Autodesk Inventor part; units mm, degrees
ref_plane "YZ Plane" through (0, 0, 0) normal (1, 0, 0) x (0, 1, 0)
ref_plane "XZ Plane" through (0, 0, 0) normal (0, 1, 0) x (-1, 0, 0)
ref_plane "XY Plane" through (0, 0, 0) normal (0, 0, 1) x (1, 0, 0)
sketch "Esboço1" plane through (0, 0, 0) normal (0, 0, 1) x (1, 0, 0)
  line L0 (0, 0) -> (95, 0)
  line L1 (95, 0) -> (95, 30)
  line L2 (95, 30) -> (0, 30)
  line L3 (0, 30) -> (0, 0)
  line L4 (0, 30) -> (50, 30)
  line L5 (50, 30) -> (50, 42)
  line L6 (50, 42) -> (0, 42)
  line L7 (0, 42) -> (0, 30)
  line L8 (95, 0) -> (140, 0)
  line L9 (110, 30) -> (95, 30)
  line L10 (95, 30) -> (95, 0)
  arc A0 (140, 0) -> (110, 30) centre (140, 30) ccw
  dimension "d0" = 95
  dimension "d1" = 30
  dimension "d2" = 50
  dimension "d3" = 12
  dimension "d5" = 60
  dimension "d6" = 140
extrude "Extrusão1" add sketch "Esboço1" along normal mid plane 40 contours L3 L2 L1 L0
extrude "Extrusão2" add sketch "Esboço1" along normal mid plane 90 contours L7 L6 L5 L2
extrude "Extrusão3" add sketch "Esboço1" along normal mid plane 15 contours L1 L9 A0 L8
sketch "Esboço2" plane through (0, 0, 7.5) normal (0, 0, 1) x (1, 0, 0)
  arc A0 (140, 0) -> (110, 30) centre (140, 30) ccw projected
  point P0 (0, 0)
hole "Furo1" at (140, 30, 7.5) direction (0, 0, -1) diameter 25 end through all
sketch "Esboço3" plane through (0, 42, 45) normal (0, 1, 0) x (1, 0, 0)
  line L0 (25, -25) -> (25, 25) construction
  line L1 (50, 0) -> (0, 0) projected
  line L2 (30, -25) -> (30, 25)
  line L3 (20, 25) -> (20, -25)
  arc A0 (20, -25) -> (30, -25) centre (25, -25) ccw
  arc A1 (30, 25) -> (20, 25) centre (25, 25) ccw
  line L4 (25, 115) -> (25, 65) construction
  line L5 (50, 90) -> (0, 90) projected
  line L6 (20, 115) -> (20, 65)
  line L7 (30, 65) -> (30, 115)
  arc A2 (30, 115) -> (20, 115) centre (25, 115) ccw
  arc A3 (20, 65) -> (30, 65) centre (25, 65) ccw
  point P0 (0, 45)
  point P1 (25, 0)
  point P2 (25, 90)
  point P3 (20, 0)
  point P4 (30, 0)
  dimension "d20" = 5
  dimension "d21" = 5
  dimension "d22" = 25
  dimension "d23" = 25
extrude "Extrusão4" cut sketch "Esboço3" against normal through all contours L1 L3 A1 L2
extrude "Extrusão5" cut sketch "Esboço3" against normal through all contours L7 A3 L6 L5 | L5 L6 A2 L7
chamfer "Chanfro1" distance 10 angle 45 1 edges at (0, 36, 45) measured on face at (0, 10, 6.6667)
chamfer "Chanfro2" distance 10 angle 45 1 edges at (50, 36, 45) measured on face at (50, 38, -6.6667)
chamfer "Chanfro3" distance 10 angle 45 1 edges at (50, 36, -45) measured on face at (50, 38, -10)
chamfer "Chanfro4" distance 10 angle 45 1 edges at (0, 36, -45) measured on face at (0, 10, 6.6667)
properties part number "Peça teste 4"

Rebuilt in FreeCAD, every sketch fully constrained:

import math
import FreeCAD as App
import Part
import Sketcher

V = App.Vector


def edges_at(feature, points):
    """Names of the edges that pass closest to the given points."""
    edges = feature.Shape.Edges
    near = lambda p: min(range(len(edges)), key=lambda i: edges[i].distToShape(Part.Vertex(*p))[0])
    return sorted({f"Edge{near(p) + 1}" for p in points})

doc = App.newDocument("Part")
params = doc.addObject("Spreadsheet::Sheet", "Params")
for row, (alias, value) in enumerate([
    ("sketch1_width", "95 mm"),
    ("sketch1_height", "30 mm"),
    ("pad1_length", "40 mm"),
    ("sketch2_width", "50 mm"),
    ("sketch2_height", "12 mm"),
    ("pad2_length", "90 mm"),
    ("sketch3_radius", "30 mm"),
    ("sketch3_height", "30 mm"),
    ("pad3_length", "15 mm"),
    ("sketch4_diameter", "25 mm"),
    ("hole_diameter", "25 mm"),
    ("sketch5_radius", "5 mm"),
    ("sketch5_height", "25 mm"),
    ("sketch6_radius", "5 mm"),
    ("sketch6_height", "50 mm"),
    ("chamfer_size", "10 mm"),
    ("chamfer2_size", "10 mm"),
    ("chamfer3_size", "10 mm"),
    ("chamfer4_size", "10 mm"),
], start=1):
    params.set(f"A{row}", alias)
    params.set(f"B{row}", "=" + value)
    params.setAlias(f"B{row}", alias)

body = doc.addObject("PartDesign::Body", "Body")

# Sketch on XY plane
sketch1 = body.newObject("Sketcher::SketchObject", "Sketch")
sketch1.AttachmentSupport = (doc.getObject("XY_Plane"), [""])
sketch1.MapMode = "FlatFace"
sketch1.addGeometry(Part.LineSegment(V(0, 30, 0), V(0, 0, 0)), False)
sketch1.addGeometry(Part.LineSegment(V(0, 0, 0), V(95, 0, 0)), False)
sketch1.addGeometry(Part.LineSegment(V(95, 0, 0), V(95, 30, 0)), False)
sketch1.addGeometry(Part.LineSegment(V(95, 30, 0), V(0, 30, 0)), False)
sketch1.addConstraint(Sketcher.Constraint("Coincident", 0, 2, 1, 1))
sketch1.addConstraint(Sketcher.Constraint("Coincident", 1, 2, 2, 1))
sketch1.addConstraint(Sketcher.Constraint("Coincident", 2, 2, 3, 1))
sketch1.addConstraint(Sketcher.Constraint("Coincident", 3, 2, 0, 1))
sketch1.addConstraint(Sketcher.Constraint("Vertical", 0))
sketch1.addConstraint(Sketcher.Constraint("Horizontal", 1))
sketch1.addConstraint(Sketcher.Constraint("Vertical", 2))
sketch1.addConstraint(Sketcher.Constraint("Horizontal", 3))
sketch1.addConstraint(Sketcher.Constraint("Coincident", 0, 2, -1, 1))
sketch1.addConstraint(Sketcher.Constraint("DistanceX", 1, 1, 1, 2, 95.0))
sketch1.addConstraint(Sketcher.Constraint("DistanceY", 0, 2, 0, 1, 30.0))
sketch1.setExpression("Constraints[9]", "Params.sketch1_width")
sketch1.setExpression("Constraints[10]", "Params.sketch1_height")
pad1 = body.newObject("PartDesign::Pad", "Pad")
pad1.Profile = sketch1
pad1.setExpression("Length", "Params.pad1_length")
pad1.Midplane = True

# Sketch on XY plane
sketch2 = body.newObject("Sketcher::SketchObject", "Sketch001")
sketch2.AttachmentSupport = (doc.getObject("XY_Plane"), [""])
sketch2.MapMode = "FlatFace"
sketch2.addGeometry(Part.LineSegment(V(0, 42, 0), V(0, 30, 0)), False)
sketch2.addGeometry(Part.LineSegment(V(0, 30, 0), V(50, 30, 0)), False)
sketch2.addGeometry(Part.LineSegment(V(50, 30, 0), V(50, 42, 0)), False)
sketch2.addGeometry(Part.LineSegment(V(50, 42, 0), V(0, 42, 0)), False)
sketch2.addConstraint(Sketcher.Constraint("Coincident", 0, 2, 1, 1))
sketch2.addConstraint(Sketcher.Constraint("Coincident", 1, 2, 2, 1))
sketch2.addConstraint(Sketcher.Constraint("Coincident", 2, 2, 3, 1))
sketch2.addConstraint(Sketcher.Constraint("Coincident", 3, 2, 0, 1))
sketch2.addConstraint(Sketcher.Constraint("Vertical", 0))
sketch2.addConstraint(Sketcher.Constraint("Horizontal", 1))
sketch2.addConstraint(Sketcher.Constraint("Vertical", 2))
sketch2.addConstraint(Sketcher.Constraint("Horizontal", 3))
sketch2.addConstraint(Sketcher.Constraint("PointOnObject", 0, 2, -2))
sketch2.addConstraint(Sketcher.Constraint("DistanceX", 1, 1, 1, 2, 50.0))
sketch2.addConstraint(Sketcher.Constraint("DistanceY", 0, 2, 0, 1, 12.0))
sketch2.addConstraint(Sketcher.Constraint("DistanceY", -1, 1, 0, 2, 30.0))
sketch2.setExpression("Constraints[9]", "Params.sketch2_width")
sketch2.setExpression("Constraints[10]", "Params.sketch2_height")
pad2 = body.newObject("PartDesign::Pad", "Pad001")
pad2.Profile = sketch2
pad2.setExpression("Length", "Params.pad2_length")
pad2.Midplane = True

# Sketch on XY plane
sketch3 = body.newObject("Sketcher::SketchObject", "Sketch002")
sketch3.AttachmentSupport = (doc.getObject("XY_Plane"), [""])
sketch3.MapMode = "FlatFace"
sketch3.addGeometry(Part.LineSegment(V(95, 30, 0), V(95, 0, 0)), False)
sketch3.addGeometry(Part.LineSegment(V(95, 0, 0), V(140, 0, 0)), False)
sketch3.addGeometry(Part.ArcOfCircle(Part.Circle(V(140, 30, 0), V(0, 0, 1), 30), math.radians(-90), math.radians(180)), False)
sketch3.addGeometry(Part.LineSegment(V(110, 30, 0), V(95, 30, 0)), False)
sketch3.addConstraint(Sketcher.Constraint("Coincident", 0, 2, 1, 1))
sketch3.addConstraint(Sketcher.Constraint("Tangent", 1, 2, 2, 1))
sketch3.addConstraint(Sketcher.Constraint("Coincident", 2, 2, 3, 1))
sketch3.addConstraint(Sketcher.Constraint("Coincident", 3, 2, 0, 1))
sketch3.addConstraint(Sketcher.Constraint("Vertical", 0))
sketch3.addConstraint(Sketcher.Constraint("Horizontal", 1))
sketch3.addConstraint(Sketcher.Constraint("Horizontal", 3))
sketch3.addConstraint(Sketcher.Constraint("PointOnObject", 0, 2, -1))
sketch3.addConstraint(Sketcher.Constraint("Radius", 2, 30.0))
sketch3.addConstraint(Sketcher.Constraint("DistanceY", 0, 2, 0, 1, 30.0))
sketch3.addConstraint(Sketcher.Constraint("DistanceX", -1, 1, 2, 3, 140.0))
sketch3.addConstraint(Sketcher.Constraint("DistanceX", -1, 1, 0, 2, 95.0))
sketch3.setExpression("Constraints[8]", "Params.sketch3_radius")
sketch3.setExpression("Constraints[9]", "Params.sketch3_height")
pad3 = body.newObject("PartDesign::Pad", "Pad002")
pad3.Profile = sketch3
pad3.setExpression("Length", "Params.pad3_length")
pad3.Midplane = True

# Sketch on XY plane
sketch4 = body.newObject("Sketcher::SketchObject", "Sketch003")
sketch4.AttachmentSupport = (doc.getObject("XY_Plane"), [""])
sketch4.MapMode = "FlatFace"
sketch4.AttachmentOffset = App.Placement(V(0, 0, 7.5), App.Rotation())
sketch4.addGeometry(Part.Circle(V(140, 30, 0), V(0, 0, 1), 12), False)
sketch4.addConstraint(Sketcher.Constraint("Diameter", 0, 25.0))
sketch4.addConstraint(Sketcher.Constraint("DistanceX", -1, 1, 0, 3, 140.0))
sketch4.addConstraint(Sketcher.Constraint("DistanceY", -1, 1, 0, 3, 30.0))
sketch4.setExpression("Constraints[0]", "Params.sketch4_diameter")
doc.recompute()
hole = body.newObject("PartDesign::Hole", "Hole")
hole.Profile = sketch4
hole.ThreadType = "None"
hole.setExpression("Diameter", "Params.hole_diameter")
hole.DepthType = "ThroughAll"

# Sketch on XZ plane
sketch5 = body.newObject("Sketcher::SketchObject", "Sketch004")
sketch5.AttachmentSupport = (doc.getObject("XZ_Plane"), [""])
sketch5.MapMode = "FlatFace"
sketch5.AttachmentOffset = App.Placement(V(0, 0, -42), App.Rotation())
sketch5.addGeometry(Part.LineSegment(V(20, 45, 0), V(30, 45, 0)), False)
sketch5.addGeometry(Part.LineSegment(V(30, 45, 0), V(30, 20, 0)), False)
sketch5.addGeometry(Part.ArcOfCircle(Part.Circle(V(25, 20, 0), V(0, 0, 1), 5), math.radians(180), math.radians(360)), False)
sketch5.addGeometry(Part.LineSegment(V(20, 20, 0), V(20, 45, 0)), False)
sketch5.addConstraint(Sketcher.Constraint("Coincident", 0, 2, 1, 1))
sketch5.addConstraint(Sketcher.Constraint("Tangent", 1, 2, 2, 2))
sketch5.addConstraint(Sketcher.Constraint("Tangent", 2, 1, 3, 1))
sketch5.addConstraint(Sketcher.Constraint("Coincident", 3, 2, 0, 1))
sketch5.addConstraint(Sketcher.Constraint("Horizontal", 0))
sketch5.addConstraint(Sketcher.Constraint("Vertical", 1))
sketch5.addConstraint(Sketcher.Constraint("Vertical", 3))
sketch5.addConstraint(Sketcher.Constraint("Radius", 2, 5.0))
sketch5.addConstraint(Sketcher.Constraint("DistanceY", 1, 2, 1, 1, 25.0))
sketch5.addConstraint(Sketcher.Constraint("DistanceX", -1, 1, 2, 3, 25.0))
sketch5.addConstraint(Sketcher.Constraint("DistanceY", -1, 1, 2, 3, 20.0))
sketch5.setExpression("Constraints[7]", "Params.sketch5_radius")
sketch5.setExpression("Constraints[8]", "Params.sketch5_height")
pocket1 = body.newObject("PartDesign::Pocket", "Pocket")
pocket1.Profile = sketch5
pocket1.Type = "ThroughAll"
pocket1.Reversed = True

# Sketch on XZ plane
sketch6 = body.newObject("Sketcher::SketchObject", "Sketch005")
sketch6.AttachmentSupport = (doc.getObject("XZ_Plane"), [""])
sketch6.MapMode = "FlatFace"
sketch6.AttachmentOffset = App.Placement(V(0, 0, -42), App.Rotation())
sketch6.addGeometry(Part.LineSegment(V(30, -20, 0), V(30, -70, 0)), False)
sketch6.addGeometry(Part.ArcOfCircle(Part.Circle(V(25, -70, 0), V(0, 0, 1), 5), math.radians(180), math.radians(360)), False)
sketch6.addGeometry(Part.LineSegment(V(20, -70, 0), V(20, -20, 0)), False)
sketch6.addGeometry(Part.ArcOfCircle(Part.Circle(V(25, -20, 0), V(0, 0, 1), 5), math.radians(0), math.radians(180)), False)
sketch6.addConstraint(Sketcher.Constraint("Tangent", 0, 2, 1, 2))
sketch6.addConstraint(Sketcher.Constraint("Tangent", 1, 1, 2, 1))
sketch6.addConstraint(Sketcher.Constraint("Tangent", 2, 2, 3, 2))
sketch6.addConstraint(Sketcher.Constraint("Tangent", 3, 1, 0, 1))
sketch6.addConstraint(Sketcher.Constraint("Vertical", 0))
sketch6.addConstraint(Sketcher.Constraint("Vertical", 2))
sketch6.addConstraint(Sketcher.Constraint("Radius", 1, 5.0))
sketch6.addConstraint(Sketcher.Constraint("DistanceX", -1, 1, 1, 3, 25.0))
sketch6.addConstraint(Sketcher.Constraint("DistanceY", 0, 2, 0, 1, 50.0))
sketch6.addConstraint(Sketcher.Constraint("DistanceY", 1, 3, -1, 1, 70.0))
sketch6.setExpression("Constraints[6]", "Params.sketch6_radius")
sketch6.setExpression("Constraints[8]", "Params.sketch6_height")
pocket2 = body.newObject("PartDesign::Pocket", "Pocket001")
pocket2.Profile = sketch6
pocket2.Type = "ThroughAll"
pocket2.Reversed = True
doc.recompute()

chamfer = body.newObject("PartDesign::Chamfer", "Chamfer")
chamfer.Base = (pocket2, edges_at(pocket2, [(0, 36, 45)]))
chamfer.setExpression("Size", "Params.chamfer_size")
doc.recompute()

chamfer2 = body.newObject("PartDesign::Chamfer", "Chamfer001")
chamfer2.Base = (chamfer, edges_at(chamfer, [(50, 36, 45)]))
chamfer2.setExpression("Size", "Params.chamfer2_size")
doc.recompute()

chamfer3 = body.newObject("PartDesign::Chamfer", "Chamfer002")
chamfer3.Base = (chamfer2, edges_at(chamfer2, [(50, 36, -45)]))
chamfer3.setExpression("Size", "Params.chamfer3_size")
doc.recompute()

chamfer4 = body.newObject("PartDesign::Chamfer", "Chamfer003")
chamfer4.Base = (chamfer3, edges_at(chamfer3, [(0, 36, -45)]))
chamfer4.setExpression("Size", "Params.chamfer4_size")

doc.recompute()
